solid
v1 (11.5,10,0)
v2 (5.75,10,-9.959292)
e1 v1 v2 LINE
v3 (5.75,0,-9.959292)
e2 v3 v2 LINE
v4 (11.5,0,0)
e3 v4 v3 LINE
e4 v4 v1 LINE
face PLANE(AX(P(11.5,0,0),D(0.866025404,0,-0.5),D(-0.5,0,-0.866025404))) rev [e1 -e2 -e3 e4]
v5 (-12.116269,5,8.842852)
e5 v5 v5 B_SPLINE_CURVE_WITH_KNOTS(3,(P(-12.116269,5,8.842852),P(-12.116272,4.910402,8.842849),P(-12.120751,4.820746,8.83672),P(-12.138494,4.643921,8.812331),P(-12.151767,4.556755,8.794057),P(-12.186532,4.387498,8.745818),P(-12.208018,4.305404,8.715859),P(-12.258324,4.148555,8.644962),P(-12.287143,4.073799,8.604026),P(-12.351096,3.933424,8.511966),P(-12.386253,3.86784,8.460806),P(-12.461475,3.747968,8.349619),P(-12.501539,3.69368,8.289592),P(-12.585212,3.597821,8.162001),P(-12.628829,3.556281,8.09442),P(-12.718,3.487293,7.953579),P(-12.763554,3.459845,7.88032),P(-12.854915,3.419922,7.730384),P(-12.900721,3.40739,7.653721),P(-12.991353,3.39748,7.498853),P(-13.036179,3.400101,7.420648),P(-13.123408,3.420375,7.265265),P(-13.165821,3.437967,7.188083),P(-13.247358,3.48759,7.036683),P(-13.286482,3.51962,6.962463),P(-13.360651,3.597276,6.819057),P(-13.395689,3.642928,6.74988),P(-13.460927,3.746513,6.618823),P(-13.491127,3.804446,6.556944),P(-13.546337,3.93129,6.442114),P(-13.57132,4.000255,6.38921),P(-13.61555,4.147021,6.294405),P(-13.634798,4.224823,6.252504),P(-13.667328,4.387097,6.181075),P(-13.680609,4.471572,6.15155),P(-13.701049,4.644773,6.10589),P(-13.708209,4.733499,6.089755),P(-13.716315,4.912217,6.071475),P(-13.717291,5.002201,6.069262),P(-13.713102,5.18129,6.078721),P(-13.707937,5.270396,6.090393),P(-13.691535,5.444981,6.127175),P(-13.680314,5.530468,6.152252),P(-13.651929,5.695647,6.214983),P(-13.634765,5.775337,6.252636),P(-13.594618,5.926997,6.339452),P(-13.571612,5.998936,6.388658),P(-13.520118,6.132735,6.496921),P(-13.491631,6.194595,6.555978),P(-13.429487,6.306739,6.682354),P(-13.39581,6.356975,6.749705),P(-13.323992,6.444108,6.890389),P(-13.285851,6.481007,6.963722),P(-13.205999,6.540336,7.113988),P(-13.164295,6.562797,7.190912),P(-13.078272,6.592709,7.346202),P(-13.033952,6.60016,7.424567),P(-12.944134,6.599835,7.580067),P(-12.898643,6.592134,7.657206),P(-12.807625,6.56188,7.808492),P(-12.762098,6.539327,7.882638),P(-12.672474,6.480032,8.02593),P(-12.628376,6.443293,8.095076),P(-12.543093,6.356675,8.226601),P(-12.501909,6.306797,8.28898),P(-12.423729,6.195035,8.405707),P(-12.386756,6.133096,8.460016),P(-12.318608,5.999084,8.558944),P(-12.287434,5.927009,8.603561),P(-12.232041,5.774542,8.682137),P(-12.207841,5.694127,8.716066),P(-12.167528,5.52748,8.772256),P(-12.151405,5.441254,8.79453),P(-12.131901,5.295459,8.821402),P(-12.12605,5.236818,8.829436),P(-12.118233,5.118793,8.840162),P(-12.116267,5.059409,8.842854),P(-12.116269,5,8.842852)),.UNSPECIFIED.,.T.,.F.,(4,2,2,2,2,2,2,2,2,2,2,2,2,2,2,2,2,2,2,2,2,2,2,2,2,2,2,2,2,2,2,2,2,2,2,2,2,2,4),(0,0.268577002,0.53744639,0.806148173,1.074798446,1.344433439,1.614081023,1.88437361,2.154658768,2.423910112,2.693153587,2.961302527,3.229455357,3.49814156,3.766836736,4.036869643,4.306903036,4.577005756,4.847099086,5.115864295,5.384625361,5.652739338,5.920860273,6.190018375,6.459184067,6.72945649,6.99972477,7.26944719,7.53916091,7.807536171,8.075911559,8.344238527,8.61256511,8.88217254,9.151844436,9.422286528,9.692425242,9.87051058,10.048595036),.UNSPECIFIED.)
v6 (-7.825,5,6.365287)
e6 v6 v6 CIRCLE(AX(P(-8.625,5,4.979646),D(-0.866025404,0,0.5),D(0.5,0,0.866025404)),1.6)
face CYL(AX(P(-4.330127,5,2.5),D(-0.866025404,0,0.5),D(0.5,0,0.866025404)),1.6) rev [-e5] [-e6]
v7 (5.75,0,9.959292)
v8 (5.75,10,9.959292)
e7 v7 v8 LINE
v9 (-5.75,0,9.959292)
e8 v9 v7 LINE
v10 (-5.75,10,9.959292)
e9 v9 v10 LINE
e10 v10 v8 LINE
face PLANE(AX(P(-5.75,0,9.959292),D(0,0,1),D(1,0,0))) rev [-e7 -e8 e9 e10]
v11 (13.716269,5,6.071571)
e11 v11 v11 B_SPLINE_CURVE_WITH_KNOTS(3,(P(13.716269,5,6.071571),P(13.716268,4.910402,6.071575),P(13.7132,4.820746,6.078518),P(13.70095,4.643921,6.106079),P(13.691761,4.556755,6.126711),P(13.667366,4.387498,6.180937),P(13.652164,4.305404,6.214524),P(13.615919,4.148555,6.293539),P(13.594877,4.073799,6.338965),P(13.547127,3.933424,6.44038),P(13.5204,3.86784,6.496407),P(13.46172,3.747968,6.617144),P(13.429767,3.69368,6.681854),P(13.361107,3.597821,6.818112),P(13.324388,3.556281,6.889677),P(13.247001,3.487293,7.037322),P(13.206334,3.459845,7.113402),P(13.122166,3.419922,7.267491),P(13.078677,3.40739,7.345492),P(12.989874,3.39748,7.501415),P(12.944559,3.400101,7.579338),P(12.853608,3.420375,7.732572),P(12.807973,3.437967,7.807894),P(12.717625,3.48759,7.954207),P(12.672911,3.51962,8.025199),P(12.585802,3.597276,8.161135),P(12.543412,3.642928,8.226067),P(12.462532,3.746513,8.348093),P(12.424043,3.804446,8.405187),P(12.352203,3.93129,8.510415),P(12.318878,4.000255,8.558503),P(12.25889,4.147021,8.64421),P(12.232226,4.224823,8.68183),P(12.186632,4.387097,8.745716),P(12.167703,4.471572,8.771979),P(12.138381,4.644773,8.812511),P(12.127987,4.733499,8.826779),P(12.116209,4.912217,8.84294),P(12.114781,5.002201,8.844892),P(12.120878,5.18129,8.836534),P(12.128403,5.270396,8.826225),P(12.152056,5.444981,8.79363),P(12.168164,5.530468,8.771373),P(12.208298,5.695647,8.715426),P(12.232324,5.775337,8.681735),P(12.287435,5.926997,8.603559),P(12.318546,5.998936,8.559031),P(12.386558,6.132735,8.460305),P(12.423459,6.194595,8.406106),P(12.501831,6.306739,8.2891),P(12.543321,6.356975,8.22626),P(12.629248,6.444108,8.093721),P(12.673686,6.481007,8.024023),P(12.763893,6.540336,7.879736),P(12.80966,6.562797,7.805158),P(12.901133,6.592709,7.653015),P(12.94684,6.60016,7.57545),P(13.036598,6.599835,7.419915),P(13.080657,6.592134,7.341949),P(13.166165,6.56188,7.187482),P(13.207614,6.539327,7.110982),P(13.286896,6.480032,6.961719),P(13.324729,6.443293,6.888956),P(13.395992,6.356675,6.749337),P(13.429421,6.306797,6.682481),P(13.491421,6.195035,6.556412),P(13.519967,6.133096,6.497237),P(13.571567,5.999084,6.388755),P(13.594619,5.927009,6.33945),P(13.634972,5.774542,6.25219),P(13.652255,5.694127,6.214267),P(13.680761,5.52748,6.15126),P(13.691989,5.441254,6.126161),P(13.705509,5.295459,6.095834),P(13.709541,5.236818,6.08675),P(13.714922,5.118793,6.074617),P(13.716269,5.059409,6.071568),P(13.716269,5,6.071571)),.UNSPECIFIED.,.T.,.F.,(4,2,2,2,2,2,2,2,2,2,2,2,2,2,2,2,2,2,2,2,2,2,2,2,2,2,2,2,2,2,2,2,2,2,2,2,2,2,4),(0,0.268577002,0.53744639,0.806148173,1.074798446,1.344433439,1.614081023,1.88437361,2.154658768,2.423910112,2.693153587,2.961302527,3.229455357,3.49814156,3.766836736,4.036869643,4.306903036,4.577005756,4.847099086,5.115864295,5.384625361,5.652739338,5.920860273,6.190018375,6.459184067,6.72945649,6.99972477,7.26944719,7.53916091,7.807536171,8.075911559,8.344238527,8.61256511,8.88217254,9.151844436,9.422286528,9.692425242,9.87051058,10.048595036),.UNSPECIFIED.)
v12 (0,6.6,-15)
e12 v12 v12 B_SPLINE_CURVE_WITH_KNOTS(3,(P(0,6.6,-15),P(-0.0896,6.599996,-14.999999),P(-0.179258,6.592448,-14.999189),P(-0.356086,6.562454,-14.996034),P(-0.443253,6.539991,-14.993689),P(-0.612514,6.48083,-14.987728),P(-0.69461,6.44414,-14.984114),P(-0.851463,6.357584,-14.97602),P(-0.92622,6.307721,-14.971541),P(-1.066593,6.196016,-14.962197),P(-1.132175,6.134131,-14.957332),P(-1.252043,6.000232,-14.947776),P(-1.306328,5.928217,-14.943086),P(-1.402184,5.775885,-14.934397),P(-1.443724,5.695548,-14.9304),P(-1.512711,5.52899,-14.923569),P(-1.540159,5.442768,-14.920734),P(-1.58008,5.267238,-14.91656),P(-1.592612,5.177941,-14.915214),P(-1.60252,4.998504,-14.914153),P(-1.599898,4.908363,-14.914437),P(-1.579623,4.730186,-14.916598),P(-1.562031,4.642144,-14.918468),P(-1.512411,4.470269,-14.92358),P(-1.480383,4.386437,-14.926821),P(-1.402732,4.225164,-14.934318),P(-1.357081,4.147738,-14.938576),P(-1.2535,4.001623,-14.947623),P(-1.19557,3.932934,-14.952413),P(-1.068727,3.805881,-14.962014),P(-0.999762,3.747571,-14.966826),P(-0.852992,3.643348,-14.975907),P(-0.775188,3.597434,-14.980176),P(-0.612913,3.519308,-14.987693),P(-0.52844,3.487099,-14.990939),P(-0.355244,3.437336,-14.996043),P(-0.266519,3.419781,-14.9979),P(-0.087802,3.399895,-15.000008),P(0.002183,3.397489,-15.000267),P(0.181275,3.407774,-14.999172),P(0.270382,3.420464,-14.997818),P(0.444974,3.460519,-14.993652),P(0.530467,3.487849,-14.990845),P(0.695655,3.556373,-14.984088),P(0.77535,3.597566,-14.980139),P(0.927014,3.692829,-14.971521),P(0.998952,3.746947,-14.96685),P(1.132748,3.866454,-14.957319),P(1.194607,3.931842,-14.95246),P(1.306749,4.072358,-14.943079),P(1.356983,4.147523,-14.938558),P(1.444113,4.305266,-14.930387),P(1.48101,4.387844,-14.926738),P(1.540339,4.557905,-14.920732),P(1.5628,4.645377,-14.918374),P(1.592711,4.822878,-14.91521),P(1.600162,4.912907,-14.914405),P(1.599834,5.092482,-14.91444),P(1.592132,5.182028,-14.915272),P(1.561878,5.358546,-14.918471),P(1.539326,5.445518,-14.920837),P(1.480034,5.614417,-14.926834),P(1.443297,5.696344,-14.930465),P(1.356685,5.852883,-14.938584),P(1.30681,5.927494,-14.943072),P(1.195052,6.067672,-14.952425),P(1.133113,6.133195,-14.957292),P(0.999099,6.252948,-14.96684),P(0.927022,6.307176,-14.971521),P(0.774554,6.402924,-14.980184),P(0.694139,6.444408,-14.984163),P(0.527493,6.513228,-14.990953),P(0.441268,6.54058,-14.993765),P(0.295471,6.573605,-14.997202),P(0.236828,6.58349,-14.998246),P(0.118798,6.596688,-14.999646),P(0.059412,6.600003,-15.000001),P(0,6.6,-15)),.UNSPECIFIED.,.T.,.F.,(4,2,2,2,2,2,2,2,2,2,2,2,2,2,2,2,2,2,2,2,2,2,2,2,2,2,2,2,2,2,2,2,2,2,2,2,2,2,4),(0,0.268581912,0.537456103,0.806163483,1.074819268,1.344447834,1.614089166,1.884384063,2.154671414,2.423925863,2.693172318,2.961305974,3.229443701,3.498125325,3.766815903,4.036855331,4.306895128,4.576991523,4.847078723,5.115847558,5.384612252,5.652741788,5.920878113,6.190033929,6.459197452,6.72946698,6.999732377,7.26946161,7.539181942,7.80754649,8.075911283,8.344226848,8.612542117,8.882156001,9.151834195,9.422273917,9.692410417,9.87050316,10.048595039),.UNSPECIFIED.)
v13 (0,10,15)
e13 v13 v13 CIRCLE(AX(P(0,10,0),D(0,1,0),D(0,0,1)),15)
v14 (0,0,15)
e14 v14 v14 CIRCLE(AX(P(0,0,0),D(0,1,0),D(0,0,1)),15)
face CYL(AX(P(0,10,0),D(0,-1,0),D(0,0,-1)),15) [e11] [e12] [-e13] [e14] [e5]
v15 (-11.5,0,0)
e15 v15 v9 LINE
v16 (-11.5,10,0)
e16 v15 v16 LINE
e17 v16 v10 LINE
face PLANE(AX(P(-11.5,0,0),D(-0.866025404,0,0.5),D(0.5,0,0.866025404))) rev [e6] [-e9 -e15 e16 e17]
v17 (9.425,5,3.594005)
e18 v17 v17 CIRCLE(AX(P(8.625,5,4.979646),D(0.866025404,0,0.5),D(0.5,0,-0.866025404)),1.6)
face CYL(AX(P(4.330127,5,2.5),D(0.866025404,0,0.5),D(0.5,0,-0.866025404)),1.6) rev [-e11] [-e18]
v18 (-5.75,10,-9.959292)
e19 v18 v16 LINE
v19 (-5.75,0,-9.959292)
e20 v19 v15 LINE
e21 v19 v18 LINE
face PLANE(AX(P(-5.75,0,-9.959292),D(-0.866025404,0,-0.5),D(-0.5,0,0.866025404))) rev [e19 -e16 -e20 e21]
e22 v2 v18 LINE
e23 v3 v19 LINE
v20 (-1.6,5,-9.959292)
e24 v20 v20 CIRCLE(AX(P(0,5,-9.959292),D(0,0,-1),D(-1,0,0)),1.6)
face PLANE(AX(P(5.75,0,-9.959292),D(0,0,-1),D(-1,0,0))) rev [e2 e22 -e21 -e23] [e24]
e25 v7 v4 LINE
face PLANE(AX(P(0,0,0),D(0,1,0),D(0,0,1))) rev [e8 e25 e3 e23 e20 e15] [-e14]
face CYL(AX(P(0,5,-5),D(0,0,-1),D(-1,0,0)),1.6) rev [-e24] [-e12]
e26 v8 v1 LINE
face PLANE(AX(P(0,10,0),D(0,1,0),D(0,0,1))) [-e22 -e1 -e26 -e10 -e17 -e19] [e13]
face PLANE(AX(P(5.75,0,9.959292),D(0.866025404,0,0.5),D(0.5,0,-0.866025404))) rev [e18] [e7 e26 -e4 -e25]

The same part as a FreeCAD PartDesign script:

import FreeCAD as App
import Part
import Sketcher
from FreeCAD import Vector
Q = App.Units.Quantity

doc = App.newDocument("Part")
body = doc.addObject("PartDesign::Body", "Body")

# Sketch on XZ plane
sketch1 = body.newObject("Sketcher::SketchObject", "Sketch")
sketch1.AttachmentSupport = (doc.getObject("XZ_Plane"), [""])
sketch1.MapMode = "FlatFace"
sketch1.addGeometry(Part.Circle(Vector(0, 0, 0), Vector(0, 0, 1), 15), False)
sketch1.addConstraint([
    Sketcher.Constraint("Coincident", 0, 3, -1, 1),
    Sketcher.Constraint("Diameter", 0, Q("30 mm")),
])
pad1 = body.newObject("PartDesign::Pad", "Pad")
pad1.Profile = sketch1
pad1.Length = 10
pad1.Reversed = True

# Sketch on XZ plane
sketch2 = body.newObject("Sketcher::SketchObject", "Sketch001")
sketch2.AttachmentSupport = (doc.getObject("XZ_Plane"), [""])
sketch2.MapMode = "FlatFace"
sketch2.AttachmentOffset = App.Placement(Vector(0, 0, -10), App.Rotation())
sketch2.addGeometry([
    Part.LineSegment(Vector(12, 0, 0), Vector(6, -10, 0)),  # 0
    Part.LineSegment(Vector(6, -10, 0), Vector(-6, -10, 0)),  # 1
    Part.LineSegment(Vector(-6, -10, 0), Vector(-12, 0, 0)),  # 2
    Part.LineSegment(Vector(-12, 0, 0), Vector(-6, 10, 0)),  # 3
    Part.LineSegment(Vector(-6, 10, 0), Vector(6, 10, 0)),  # 4
    Part.LineSegment(Vector(6, 10, 0), Vector(12, 0, 0)),  # 5
], False)
sketch2.addConstraint([
    Sketcher.Constraint("Coincident", 0, 2, 1, 1),
    Sketcher.Constraint("Coincident", 1, 2, 2, 1),
    Sketcher.Constraint("Coincident", 2, 2, 3, 1),
    Sketcher.Constraint("Coincident", 3, 2, 4, 1),
    Sketcher.Constraint("Coincident", 4, 2, 5, 1),
    Sketcher.Constraint("Coincident", 5, 2, 0, 1),
    Sketcher.Constraint("Horizontal", 1),
    Sketcher.Constraint("Horizontal", 4),
    Sketcher.Constraint("Symmetric", 0, 2, 3, 2, -1, 1),
    Sketcher.Constraint("Symmetric", 2, 2, 5, 2, -1, 1),
    Sketcher.Constraint("PointOnObject", 2, 2, -1),
    Sketcher.Constraint("Parallel", 2, 5),
    Sketcher.Constraint("Vertical", 1, 2, 3, 2),
    Sketcher.Constraint("Angle", 0, Q("-120 deg")),
    Sketcher.Constraint("DistanceX", 1, 2, 1, 1, Q("11.5 mm")),
    Sketcher.Constraint("DistanceX", 2, 2, 5, 2, Q("23 mm")),
])
pocket1 = body.newObject("PartDesign::Pocket", "Pocket")
pocket1.Profile = sketch2
pocket1.Type = "ThroughAll"
pocket1.Reversed = True

# Sketch on an angled plane
sketch3 = body.newObject("Sketcher::SketchObject", "Sketch002")
sketch3.Placement = App.Placement(Vector(-12.990381, 0, 7.5), App.Rotation(Vector(0.5, 0, 0.866025404), Vector(0, 1, 0), Vector(-0.866025404, 0, 0.5), "ZXY"))
sketch3.addGeometry(Part.Circle(Vector(0, 5, 0), Vector(0, 0, 1), 1.6), False)
sketch3.addConstraint([
    Sketcher.Constraint("PointOnObject", 0, 3, -2),
    Sketcher.Constraint("Diameter", 0, Q("3.2 mm")),
    Sketcher.Constraint("DistanceY", -1, 1, 0, 3, Q("5 mm")),
])
pocket2 = body.newObject("PartDesign::Pocket", "Pocket001")
pocket2.Profile = sketch3
pocket2.Length = 10
doc.recompute()

polarpattern = body.newObject("PartDesign::PolarPattern", "PolarPattern")
polarpattern.Originals = [pocket2]
polarpattern.Axis = (doc.getObject("Y_Axis"), [""])
polarpattern.Angle = 360
polarpattern.Occurrences = 3
body.Tip = polarpattern

doc.recompute()
